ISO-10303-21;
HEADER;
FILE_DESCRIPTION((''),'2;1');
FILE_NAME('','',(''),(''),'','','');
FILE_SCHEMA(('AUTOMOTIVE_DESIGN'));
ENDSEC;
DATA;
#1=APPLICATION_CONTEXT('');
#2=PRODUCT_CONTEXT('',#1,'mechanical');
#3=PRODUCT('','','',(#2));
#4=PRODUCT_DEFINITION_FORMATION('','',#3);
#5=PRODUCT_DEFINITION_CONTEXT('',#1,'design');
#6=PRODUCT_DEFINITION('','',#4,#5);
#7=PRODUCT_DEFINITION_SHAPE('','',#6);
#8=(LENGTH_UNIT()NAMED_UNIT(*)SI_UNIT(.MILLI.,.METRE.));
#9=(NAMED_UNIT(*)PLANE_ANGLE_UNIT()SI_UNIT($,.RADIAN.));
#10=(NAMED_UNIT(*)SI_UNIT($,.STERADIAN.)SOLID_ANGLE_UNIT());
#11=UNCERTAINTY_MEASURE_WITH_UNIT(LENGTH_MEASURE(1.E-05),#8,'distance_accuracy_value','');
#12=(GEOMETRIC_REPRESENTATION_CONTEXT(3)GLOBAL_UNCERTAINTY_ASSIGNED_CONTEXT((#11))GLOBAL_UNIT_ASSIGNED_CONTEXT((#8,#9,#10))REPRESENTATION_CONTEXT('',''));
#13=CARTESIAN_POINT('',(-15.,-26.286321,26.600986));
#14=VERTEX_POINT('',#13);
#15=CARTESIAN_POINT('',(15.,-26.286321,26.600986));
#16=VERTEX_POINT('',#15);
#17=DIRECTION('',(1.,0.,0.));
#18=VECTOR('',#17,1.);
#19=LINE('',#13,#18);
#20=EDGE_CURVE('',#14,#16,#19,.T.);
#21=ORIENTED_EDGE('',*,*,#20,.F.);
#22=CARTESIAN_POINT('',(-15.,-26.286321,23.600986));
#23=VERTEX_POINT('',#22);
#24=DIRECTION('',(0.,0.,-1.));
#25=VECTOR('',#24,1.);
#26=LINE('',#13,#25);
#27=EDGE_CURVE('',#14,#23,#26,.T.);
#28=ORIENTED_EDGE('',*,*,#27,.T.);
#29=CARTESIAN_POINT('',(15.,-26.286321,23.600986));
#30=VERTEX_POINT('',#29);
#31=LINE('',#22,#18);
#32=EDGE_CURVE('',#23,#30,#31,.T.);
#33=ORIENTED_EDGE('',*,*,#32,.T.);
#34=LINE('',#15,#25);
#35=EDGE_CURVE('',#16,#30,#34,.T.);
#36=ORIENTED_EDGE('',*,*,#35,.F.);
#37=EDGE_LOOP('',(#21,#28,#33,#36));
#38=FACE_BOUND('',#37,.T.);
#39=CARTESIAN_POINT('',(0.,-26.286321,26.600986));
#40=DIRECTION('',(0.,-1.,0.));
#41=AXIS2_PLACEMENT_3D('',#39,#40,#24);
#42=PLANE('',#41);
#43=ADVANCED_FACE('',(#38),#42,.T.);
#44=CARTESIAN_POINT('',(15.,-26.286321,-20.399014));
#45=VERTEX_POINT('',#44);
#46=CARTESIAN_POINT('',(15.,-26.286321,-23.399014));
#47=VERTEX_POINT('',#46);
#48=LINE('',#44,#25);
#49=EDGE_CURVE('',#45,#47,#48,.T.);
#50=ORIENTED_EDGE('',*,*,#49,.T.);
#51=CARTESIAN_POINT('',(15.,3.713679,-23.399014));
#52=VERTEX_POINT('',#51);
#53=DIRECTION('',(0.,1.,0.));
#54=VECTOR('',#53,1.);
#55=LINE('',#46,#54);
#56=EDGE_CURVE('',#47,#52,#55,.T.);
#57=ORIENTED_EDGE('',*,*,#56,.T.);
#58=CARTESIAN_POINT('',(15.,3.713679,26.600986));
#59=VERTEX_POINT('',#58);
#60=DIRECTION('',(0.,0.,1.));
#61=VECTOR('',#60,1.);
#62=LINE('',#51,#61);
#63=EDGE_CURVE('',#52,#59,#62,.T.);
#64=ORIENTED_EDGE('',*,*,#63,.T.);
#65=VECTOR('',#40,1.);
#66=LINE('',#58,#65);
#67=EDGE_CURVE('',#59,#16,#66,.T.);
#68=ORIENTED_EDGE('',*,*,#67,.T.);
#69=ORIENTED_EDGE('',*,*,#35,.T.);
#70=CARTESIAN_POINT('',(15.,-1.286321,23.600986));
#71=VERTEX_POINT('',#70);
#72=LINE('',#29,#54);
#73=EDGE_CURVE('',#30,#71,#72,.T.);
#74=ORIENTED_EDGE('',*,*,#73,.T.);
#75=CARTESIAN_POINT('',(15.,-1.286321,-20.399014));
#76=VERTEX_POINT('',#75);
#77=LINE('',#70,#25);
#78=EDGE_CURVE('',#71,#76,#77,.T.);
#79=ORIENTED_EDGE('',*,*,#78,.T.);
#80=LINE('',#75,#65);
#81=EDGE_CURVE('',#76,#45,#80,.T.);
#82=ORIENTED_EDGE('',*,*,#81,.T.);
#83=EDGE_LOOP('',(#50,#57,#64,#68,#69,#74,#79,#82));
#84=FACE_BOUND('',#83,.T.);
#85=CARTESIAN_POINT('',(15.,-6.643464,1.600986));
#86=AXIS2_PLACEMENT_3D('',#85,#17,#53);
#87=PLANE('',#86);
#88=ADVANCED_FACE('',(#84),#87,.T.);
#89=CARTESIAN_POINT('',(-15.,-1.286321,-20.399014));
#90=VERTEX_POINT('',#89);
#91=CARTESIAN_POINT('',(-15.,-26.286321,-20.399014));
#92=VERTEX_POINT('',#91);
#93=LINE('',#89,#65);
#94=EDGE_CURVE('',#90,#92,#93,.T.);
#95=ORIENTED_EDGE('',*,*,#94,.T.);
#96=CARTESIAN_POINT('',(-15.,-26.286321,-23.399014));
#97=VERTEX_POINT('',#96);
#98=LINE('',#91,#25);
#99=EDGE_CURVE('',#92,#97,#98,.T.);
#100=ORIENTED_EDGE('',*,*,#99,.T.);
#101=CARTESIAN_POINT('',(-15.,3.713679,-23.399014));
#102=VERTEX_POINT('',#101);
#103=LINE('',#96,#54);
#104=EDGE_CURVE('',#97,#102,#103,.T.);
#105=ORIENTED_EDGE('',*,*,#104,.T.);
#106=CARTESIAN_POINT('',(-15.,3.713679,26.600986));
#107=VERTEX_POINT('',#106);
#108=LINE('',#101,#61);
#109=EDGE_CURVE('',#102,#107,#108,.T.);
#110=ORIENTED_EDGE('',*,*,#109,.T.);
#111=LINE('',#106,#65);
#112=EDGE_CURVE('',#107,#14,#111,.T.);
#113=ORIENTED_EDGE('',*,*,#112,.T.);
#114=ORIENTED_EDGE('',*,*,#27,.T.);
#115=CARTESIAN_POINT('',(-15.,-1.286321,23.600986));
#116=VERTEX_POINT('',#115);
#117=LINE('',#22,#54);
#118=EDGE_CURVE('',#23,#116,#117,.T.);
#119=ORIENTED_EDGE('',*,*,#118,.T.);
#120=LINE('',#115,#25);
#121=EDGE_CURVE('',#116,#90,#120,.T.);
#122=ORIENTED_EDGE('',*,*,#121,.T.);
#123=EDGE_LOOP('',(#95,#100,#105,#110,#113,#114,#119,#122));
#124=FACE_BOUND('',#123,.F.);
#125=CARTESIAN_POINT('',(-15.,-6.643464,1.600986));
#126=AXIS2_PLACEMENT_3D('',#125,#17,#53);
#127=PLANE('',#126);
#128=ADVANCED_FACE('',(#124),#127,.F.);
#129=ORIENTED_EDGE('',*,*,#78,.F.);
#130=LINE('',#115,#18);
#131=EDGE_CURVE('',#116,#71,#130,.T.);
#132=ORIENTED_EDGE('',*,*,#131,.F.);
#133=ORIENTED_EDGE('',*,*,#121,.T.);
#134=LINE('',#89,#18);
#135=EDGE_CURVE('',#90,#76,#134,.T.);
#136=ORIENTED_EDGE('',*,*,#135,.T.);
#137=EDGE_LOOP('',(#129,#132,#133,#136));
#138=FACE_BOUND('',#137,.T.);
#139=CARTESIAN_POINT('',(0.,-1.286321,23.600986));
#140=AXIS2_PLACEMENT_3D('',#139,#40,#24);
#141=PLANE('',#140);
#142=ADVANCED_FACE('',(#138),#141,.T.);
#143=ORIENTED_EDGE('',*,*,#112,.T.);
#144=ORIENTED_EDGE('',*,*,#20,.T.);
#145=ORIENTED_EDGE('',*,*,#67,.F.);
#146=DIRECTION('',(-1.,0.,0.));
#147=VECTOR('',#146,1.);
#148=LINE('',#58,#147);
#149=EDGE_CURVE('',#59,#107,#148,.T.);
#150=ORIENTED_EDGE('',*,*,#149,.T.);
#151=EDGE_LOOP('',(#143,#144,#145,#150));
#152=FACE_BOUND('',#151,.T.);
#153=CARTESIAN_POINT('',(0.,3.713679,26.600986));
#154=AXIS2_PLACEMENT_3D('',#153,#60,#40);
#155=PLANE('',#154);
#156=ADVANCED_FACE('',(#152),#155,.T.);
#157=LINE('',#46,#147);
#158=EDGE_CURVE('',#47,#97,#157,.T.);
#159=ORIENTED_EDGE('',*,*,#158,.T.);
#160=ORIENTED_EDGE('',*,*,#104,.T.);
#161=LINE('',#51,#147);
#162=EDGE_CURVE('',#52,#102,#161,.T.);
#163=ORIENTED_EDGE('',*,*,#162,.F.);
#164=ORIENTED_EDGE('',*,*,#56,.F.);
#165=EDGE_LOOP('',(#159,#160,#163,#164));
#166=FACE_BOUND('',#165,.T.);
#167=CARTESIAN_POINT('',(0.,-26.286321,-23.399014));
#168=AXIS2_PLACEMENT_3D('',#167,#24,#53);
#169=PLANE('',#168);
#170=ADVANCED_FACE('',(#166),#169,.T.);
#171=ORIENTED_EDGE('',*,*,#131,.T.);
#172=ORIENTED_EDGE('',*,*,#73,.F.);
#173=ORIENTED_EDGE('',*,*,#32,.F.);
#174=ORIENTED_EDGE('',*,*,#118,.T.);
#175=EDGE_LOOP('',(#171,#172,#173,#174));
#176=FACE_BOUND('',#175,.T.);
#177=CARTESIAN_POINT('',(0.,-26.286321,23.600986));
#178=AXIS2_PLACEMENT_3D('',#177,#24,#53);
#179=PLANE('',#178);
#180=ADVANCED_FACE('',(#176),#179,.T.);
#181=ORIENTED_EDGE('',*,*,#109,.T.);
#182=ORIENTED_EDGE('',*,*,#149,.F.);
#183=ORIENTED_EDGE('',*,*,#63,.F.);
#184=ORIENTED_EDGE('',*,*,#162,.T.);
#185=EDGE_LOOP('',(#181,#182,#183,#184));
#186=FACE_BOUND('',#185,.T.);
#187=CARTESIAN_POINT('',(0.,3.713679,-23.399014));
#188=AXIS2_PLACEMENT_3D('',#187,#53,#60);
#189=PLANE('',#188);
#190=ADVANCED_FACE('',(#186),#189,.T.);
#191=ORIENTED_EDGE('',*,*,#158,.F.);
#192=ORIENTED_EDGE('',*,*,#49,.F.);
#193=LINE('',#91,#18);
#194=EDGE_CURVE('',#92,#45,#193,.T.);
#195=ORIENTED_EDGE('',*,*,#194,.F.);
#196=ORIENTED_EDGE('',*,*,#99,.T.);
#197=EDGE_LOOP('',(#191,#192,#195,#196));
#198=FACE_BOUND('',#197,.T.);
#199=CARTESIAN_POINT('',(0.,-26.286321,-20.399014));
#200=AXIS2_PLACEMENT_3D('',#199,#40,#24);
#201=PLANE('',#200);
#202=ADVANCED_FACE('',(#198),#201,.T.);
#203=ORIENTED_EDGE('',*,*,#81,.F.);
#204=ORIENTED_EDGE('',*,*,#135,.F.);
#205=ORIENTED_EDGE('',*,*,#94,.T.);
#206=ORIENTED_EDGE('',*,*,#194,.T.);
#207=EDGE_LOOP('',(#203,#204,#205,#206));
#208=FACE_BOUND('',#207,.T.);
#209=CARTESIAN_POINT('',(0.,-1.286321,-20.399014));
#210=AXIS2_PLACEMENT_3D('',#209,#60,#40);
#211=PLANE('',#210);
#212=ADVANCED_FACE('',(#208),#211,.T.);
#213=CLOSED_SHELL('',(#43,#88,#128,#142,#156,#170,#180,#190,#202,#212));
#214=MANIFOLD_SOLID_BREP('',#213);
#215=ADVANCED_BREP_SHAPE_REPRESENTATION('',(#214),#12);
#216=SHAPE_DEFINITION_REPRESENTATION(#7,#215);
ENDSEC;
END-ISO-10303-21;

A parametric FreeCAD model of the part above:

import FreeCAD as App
import Part
import Sketcher
from FreeCAD import Vector


def add_polygon(sketch, points):
    """Adds a closed chain of lines whose ends are joined by coincident constraints."""
    first, n = sketch.GeometryCount, len(points)
    for a, b in zip(points, points[1:] + points[:1]):
        sketch.addGeometry(Part.LineSegment(App.Vector(*a, 0), App.Vector(*b, 0)), False)
    for i in range(n):
        sketch.addConstraint(Sketcher.Constraint("Coincident", first + i, 2, first + (i + 1) % n, 1))

doc = App.newDocument("Part")
params = doc.addObject("Spreadsheet::Sheet", "Params")
for row, (alias, value) in enumerate([
    ("sketch1_width", "30 mm"),
    ("sketch1_width2", "25 mm"),
    ("sketch1_height", "3 mm"),
    ("sketch1_height2", "44 mm"),
    ("pad1_length", "30 mm"),
], start=1):
    params.set(f"A{row}", alias)
    params.set(f"B{row}", "=" + value)
    params.setAlias(f"B{row}", alias)

body = doc.addObject("PartDesign::Body", "Body")

sketch1 = body.newObject("Sketcher::SketchObject", "Sketch")
sketch1.AttachmentSupport = (doc.getObject("YZ_Plane"), [""])
sketch1.MapMode = "FlatFace"
add_polygon(sketch1, [(0, -1.9), (-30, -1.9), (-30, -4.9), (-5, -4.9), (-5, -48.9), (-30, -48.9), (-30, -51.9), (0, -51.9)])
sketch1.addConstraint(Sketcher.Constraint("Horizontal", 0))
sketch1.addConstraint(Sketcher.Constraint("Vertical", 1))
sketch1.addConstraint(Sketcher.Constraint("Horizontal", 2))
sketch1.addConstraint(Sketcher.Constraint("Vertical", 3))
sketch1.addConstraint(Sketcher.Constraint("Horizontal", 4))
sketch1.addConstraint(Sketcher.Constraint("Vertical", 5))
sketch1.addConstraint(Sketcher.Constraint("Horizontal", 6))
sketch1.addConstraint(Sketcher.Constraint("Vertical", 7))
sketch1.addConstraint(Sketcher.Constraint("PointOnObject", 6, 2, -2))
sketch1.addConstraint(Sketcher.Constraint("Vertical", 1, 2, 4, 2))
sketch1.addConstraint(Sketcher.Constraint("Equal", 1, 5))
sketch1.addConstraint(Sketcher.Constraint("DistanceX", 0, 2, 0, 1, 30.0))
sketch1.addConstraint(Sketcher.Constraint("DistanceX", 2, 1, 2, 2, 25.0))
sketch1.addConstraint(Sketcher.Constraint("DistanceY", 1, 2, 1, 1, 3.0))
sketch1.addConstraint(Sketcher.Constraint("DistanceY", 3, 2, 3, 1, 44.0))
sketch1.addConstraint(Sketcher.Constraint("DistanceY", 0, 2, -1, 1, 1.871972))
sketch1.setExpression("Constraints[19]", "Params.sketch1_width")
sketch1.setExpression("Constraints[20]", "Params.sketch1_width2")
sketch1.setExpression("Constraints[21]", "Params.sketch1_height")
sketch1.setExpression("Constraints[22]", "Params.sketch1_height2")
pad1 = body.newObject("PartDesign::Pad", "Pad")
pad1.Profile = sketch1
pad1.setExpression("Length", "Params.pad1_length")
pad1.Midplane = True
body2 = doc.addObject("PartDesign::Body", "Body001")
doc.recompute()

body.Placement = App.Placement(Vector(0, 3.713679, 28.472958), App.Rotation(Vector(0, 0, 1), 0))
boolean = body2.newObject("PartDesign::Boolean", "Boolean")
boolean.Type = "Fuse"
boolean.addObjects([body])

doc.recompute()
